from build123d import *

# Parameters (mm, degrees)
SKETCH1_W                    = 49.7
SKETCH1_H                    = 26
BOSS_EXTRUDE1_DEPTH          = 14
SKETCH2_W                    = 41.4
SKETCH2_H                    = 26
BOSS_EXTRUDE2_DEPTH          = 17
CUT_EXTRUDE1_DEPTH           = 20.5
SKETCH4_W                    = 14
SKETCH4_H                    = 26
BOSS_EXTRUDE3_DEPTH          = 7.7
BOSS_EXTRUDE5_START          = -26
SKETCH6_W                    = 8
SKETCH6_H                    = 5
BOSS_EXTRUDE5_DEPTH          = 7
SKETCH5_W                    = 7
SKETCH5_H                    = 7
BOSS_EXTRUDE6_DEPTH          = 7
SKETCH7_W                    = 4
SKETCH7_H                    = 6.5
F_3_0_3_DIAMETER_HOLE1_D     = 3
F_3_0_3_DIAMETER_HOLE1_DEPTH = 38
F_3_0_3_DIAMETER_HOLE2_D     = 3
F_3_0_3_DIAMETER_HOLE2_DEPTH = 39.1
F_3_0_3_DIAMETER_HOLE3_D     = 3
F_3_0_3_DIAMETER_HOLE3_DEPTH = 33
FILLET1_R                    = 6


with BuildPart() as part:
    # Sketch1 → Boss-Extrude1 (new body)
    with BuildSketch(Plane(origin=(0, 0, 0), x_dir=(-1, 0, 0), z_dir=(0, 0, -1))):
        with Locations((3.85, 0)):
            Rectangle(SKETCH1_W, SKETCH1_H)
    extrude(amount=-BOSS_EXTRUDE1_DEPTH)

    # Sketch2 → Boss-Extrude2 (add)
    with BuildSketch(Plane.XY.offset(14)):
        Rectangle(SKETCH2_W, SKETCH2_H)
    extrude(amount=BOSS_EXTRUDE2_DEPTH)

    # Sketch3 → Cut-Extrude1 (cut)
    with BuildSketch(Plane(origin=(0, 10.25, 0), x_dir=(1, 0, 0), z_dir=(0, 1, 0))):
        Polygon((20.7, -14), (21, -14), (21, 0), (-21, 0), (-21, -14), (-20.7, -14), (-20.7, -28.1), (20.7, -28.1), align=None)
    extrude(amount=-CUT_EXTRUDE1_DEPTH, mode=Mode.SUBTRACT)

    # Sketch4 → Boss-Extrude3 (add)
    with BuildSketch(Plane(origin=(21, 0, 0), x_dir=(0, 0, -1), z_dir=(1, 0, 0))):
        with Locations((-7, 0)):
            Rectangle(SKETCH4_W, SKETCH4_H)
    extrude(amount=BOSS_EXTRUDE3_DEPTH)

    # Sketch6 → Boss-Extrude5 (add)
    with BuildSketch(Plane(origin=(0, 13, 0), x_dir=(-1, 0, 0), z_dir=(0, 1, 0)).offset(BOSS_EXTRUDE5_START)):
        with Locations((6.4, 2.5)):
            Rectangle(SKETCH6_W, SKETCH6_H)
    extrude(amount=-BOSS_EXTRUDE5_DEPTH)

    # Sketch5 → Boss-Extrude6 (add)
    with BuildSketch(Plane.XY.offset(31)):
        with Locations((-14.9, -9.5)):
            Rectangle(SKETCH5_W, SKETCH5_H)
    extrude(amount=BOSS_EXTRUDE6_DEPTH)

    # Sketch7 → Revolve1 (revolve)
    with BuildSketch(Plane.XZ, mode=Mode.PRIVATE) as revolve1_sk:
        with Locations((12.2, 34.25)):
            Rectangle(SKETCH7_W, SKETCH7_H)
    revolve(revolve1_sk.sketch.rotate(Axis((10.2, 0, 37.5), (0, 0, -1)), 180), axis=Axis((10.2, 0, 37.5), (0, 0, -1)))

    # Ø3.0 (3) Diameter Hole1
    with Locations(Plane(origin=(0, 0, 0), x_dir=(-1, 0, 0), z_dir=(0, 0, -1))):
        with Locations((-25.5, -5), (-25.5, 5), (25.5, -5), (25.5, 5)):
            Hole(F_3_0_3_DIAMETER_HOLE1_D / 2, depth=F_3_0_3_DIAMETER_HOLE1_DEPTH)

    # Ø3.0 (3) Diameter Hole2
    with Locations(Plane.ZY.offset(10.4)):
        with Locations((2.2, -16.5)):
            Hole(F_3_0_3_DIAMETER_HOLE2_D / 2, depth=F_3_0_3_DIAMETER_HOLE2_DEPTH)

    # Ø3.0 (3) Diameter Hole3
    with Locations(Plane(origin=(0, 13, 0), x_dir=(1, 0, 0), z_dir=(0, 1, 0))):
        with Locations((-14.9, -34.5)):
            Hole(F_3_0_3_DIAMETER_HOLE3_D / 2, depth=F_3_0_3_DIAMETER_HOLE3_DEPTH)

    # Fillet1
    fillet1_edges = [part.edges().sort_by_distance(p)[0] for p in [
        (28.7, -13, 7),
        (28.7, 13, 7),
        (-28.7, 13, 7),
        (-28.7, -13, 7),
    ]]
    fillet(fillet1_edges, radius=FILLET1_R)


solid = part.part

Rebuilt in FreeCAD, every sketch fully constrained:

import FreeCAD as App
import Part
import Sketcher

V = App.Vector


def edges_at(feature, points):
    """Names of the edges that pass closest to the given points."""
    edges = feature.Shape.Edges
    near = lambda p: min(range(len(edges)), key=lambda i: edges[i].distToShape(Part.Vertex(*p))[0])
    return sorted({f"Edge{near(p) + 1}" for p in points})

doc = App.newDocument("Part")
body = doc.addObject("PartDesign::Body", "Body")

# Sketch on XY plane
sketch1 = body.newObject("Sketcher::SketchObject", "Sketch")
sketch1.AttachmentSupport = (doc.getObject("XY_Plane"), [""])
sketch1.MapMode = "FlatFace"
sketch1.addGeometry([
    Part.LineSegment(V(21, 13, 0), V(21, -13, 0)),
    Part.LineSegment(V(21, -13, 0), V(-28.7, -13, 0)),
    Part.LineSegment(V(-28.7, -13, 0), V(-28.7, 13, 0)),
    Part.LineSegment(V(-28.7, 13, 0), V(21, 13, 0)),
], False)
sketch1.addConstraint([
    Sketcher.Constraint("Coincident", 0, 2, 1, 1),
    Sketcher.Constraint("Coincident", 1, 2, 2, 1),
    Sketcher.Constraint("Coincident", 2, 2, 3, 1),
    Sketcher.Constraint("Coincident", 3, 2, 0, 1),
    Sketcher.Constraint("Vertical", 0),
    Sketcher.Constraint("Horizontal", 1),
    Sketcher.Constraint("Vertical", 2),
    Sketcher.Constraint("Horizontal", 3),
    Sketcher.Constraint("DistanceY", 0, 2, 0, 1, 26.0),
    Sketcher.Constraint("DistanceX", 1, 2, 1, 1, 49.7),
    Sketcher.Constraint("DistanceX", -1, 1, 0, 2, 21.0),
    Sketcher.Constraint("DistanceY", 0, 2, -1, 1, 13.0),
])
pad1 = body.newObject("PartDesign::Pad", "Pad")
pad1.Profile = sketch1
pad1.Length = 14

# Sketch on XY plane
sketch2 = body.newObject("Sketcher::SketchObject", "Sketch001")
sketch2.AttachmentSupport = (doc.getObject("XY_Plane"), [""])
sketch2.MapMode = "FlatFace"
sketch2.AttachmentOffset = App.Placement(V(0, 0, 14), App.Rotation())
sketch2.addGeometry([
    Part.LineSegment(V(-20.7, 13, 0), V(-20.7, -13, 0)),
    Part.LineSegment(V(-20.7, -13, 0), V(20.7, -13, 0)),
    Part.LineSegment(V(20.7, -13, 0), V(20.7, 13, 0)),
    Part.LineSegment(V(20.7, 13, 0), V(-20.7, 13, 0)),
], False)
sketch2.addConstraint([
    Sketcher.Constraint("Coincident", 0, 2, 1, 1),
    Sketcher.Constraint("Coincident", 1, 2, 2, 1),
    Sketcher.Constraint("Coincident", 2, 2, 3, 1),
    Sketcher.Constraint("Coincident", 3, 2, 0, 1),
    Sketcher.Constraint("Vertical", 0),
    Sketcher.Constraint("Horizontal", 1),
    Sketcher.Constraint("Vertical", 2),
    Sketcher.Constraint("Horizontal", 3),
    Sketcher.Constraint("Symmetric", 0, 2, 2, 2, -1, 1),
    Sketcher.Constraint("DistanceY", 0, 2, 0, 1, 26.0),
    Sketcher.Constraint("DistanceX", 1, 1, 1, 2, 41.4),
])
pad2 = body.newObject("PartDesign::Pad", "Pad001")
pad2.Profile = sketch2
pad2.Length = 17

# Sketch on XZ plane
sketch3 = body.newObject("Sketcher::SketchObject", "Sketch002")
sketch3.AttachmentSupport = (doc.getObject("XZ_Plane"), [""])
sketch3.MapMode = "FlatFace"
sketch3.AttachmentOffset = App.Placement(V(0, 0, -10.25), App.Rotation())
sketch3.addGeometry([
    Part.LineSegment(V(20.7, 14, 0), V(21, 14, 0)),  # 0
    Part.LineSegment(V(21, 14, 0), V(21, 0, 0)),  # 1
    Part.LineSegment(V(21, 0, 0), V(-21, 0, 0)),  # 2
    Part.LineSegment(V(-21, 0, 0), V(-21, 14, 0)),  # 3
    Part.LineSegment(V(-21, 14, 0), V(-20.7, 14, 0)),  # 4
    Part.LineSegment(V(-20.7, 14, 0), V(-20.7, 28.1, 0)),  # 5
    Part.LineSegment(V(-20.7, 28.1, 0), V(20.7, 28.1, 0)),  # 6
    Part.LineSegment(V(20.7, 28.1, 0), V(20.7, 14, 0)),  # 7
], False)
sketch3.addConstraint([
    Sketcher.Constraint("Coincident", 0, 2, 1, 1),
    Sketcher.Constraint("Coincident", 1, 2, 2, 1),
    Sketcher.Constraint("Coincident", 2, 2, 3, 1),
    Sketcher.Constraint("Coincident", 3, 2, 4, 1),
    Sketcher.Constraint("Coincident", 4, 2, 5, 1),
    Sketcher.Constraint("Coincident", 5, 2, 6, 1),
    Sketcher.Constraint("Coincident", 6, 2, 7, 1),
    Sketcher.Constraint("Coincident", 7, 2, 0, 1),
    Sketcher.Constraint("Horizontal", 0),
    Sketcher.Constraint("Vertical", 1),
    Sketcher.Constraint("Horizontal", 2),
    Sketcher.Constraint("Vertical", 3),
    Sketcher.Constraint("Horizontal", 4),
    Sketcher.Constraint("Vertical", 5),
    Sketcher.Constraint("Horizontal", 6),
    Sketcher.Constraint("Vertical", 7),
    Sketcher.Constraint("Symmetric", 1, 2, 2, 2, -1, 1),
    Sketcher.Constraint("Symmetric", 4, 2, 7, 2, -2),
    Sketcher.Constraint("DistanceX", 2, 2, 2, 1, 42.0),
    Sketcher.Constraint("DistanceY", 1, 2, 1, 1, 14.0),
    Sketcher.Constraint("DistanceX", 0, 1, 0, 2, 0.3),
    Sketcher.Constraint("DistanceY", 5, 1, 5, 2, 14.1),
])
pocket1 = body.newObject("PartDesign::Pocket", "Pocket")
pocket1.Profile = sketch3
pocket1.Length = 20.5
pocket1.Reversed = True

# Sketch on YZ plane
sketch4 = body.newObject("Sketcher::SketchObject", "Sketch003")
sketch4.AttachmentSupport = (doc.getObject("YZ_Plane"), [""])
sketch4.MapMode = "FlatFace"
sketch4.AttachmentOffset = App.Placement(V(0, 0, 21), App.Rotation())
sketch4.addGeometry([
    Part.LineSegment(V(13, 14, 0), V(-13, 14, 0)),
    Part.LineSegment(V(-13, 14, 0), V(-13, 0, 0)),
    Part.LineSegment(V(-13, 0, 0), V(13, 0, 0)),
    Part.LineSegment(V(13, 0, 0), V(13, 14, 0)),
], False)
sketch4.addConstraint([
    Sketcher.Constraint("Coincident", 0, 2, 1, 1),
    Sketcher.Constraint("Coincident", 1, 2, 2, 1),
    Sketcher.Constraint("Coincident", 2, 2, 3, 1),
    Sketcher.Constraint("Coincident", 3, 2, 0, 1),
    Sketcher.Constraint("Horizontal", 0),
    Sketcher.Constraint("Vertical", 1),
    Sketcher.Constraint("Horizontal", 2),
    Sketcher.Constraint("Vertical", 3),
    Sketcher.Constraint("Symmetric", 1, 2, 2, 2, -1, 1),
    Sketcher.Constraint("DistanceX", 0, 2, 0, 1, 26.0),
    Sketcher.Constraint("DistanceY", 1, 2, 1, 1, 14.0),
])
pad3 = body.newObject("PartDesign::Pad", "Pad002")
pad3.Profile = sketch4
pad3.Length = 7.7

# Sketch on XZ plane
sketch5 = body.newObject("Sketcher::SketchObject", "Sketch004")
sketch5.AttachmentSupport = (doc.getObject("XZ_Plane"), [""])
sketch5.MapMode = "FlatFace"
sketch5.AttachmentOffset = App.Placement(V(0, 0, 13), App.Rotation())
sketch5.addGeometry([
    Part.LineSegment(V(-2.4, 5, 0), V(-2.4, 0, 0)),
    Part.LineSegment(V(-2.4, 0, 0), V(-10.4, 0, 0)),
    Part.LineSegment(V(-10.4, 0, 0), V(-10.4, 5, 0)),
    Part.LineSegment(V(-10.4, 5, 0), V(-2.4, 5, 0)),
], False)
sketch5.addConstraint([
    Sketcher.Constraint("Coincident", 0, 2, 1, 1),
    Sketcher.Constraint("Coincident", 1, 2, 2, 1),
    Sketcher.Constraint("Coincident", 2, 2, 3, 1),
    Sketcher.Constraint("Coincident", 3, 2, 0, 1),
    Sketcher.Constraint("Vertical", 0),
    Sketcher.Constraint("Horizontal", 1),
    Sketcher.Constraint("Vertical", 2),
    Sketcher.Constraint("Horizontal", 3),
    Sketcher.Constraint("PointOnObject", 0, 2, -1),
    Sketcher.Constraint("DistanceX", 1, 2, 1, 1, 8.0),
    Sketcher.Constraint("DistanceY", 0, 2, 0, 1, 5.0),
    Sketcher.Constraint("DistanceX", 0, 2, -1, 1, 2.4),
])
pad4 = body.newObject("PartDesign::Pad", "Pad003")
pad4.Profile = sketch5
pad4.Length = 7

# Sketch on XY plane
sketch6 = body.newObject("Sketcher::SketchObject", "Sketch005")
sketch6.AttachmentSupport = (doc.getObject("XY_Plane"), [""])
sketch6.MapMode = "FlatFace"
sketch6.AttachmentOffset = App.Placement(V(0, 0, 31), App.Rotation())
sketch6.addGeometry([
    Part.LineSegment(V(-18.4, -6, 0), V(-18.4, -13, 0)),
    Part.LineSegment(V(-18.4, -13, 0), V(-11.4, -13, 0)),
    Part.LineSegment(V(-11.4, -13, 0), V(-11.4, -6, 0)),
    Part.LineSegment(V(-11.4, -6, 0), V(-18.4, -6, 0)),
], False)
sketch6.addConstraint([
    Sketcher.Constraint("Coincident", 0, 2, 1, 1),
    Sketcher.Constraint("Coincident", 1, 2, 2, 1),
    Sketcher.Constraint("Coincident", 2, 2, 3, 1),
    Sketcher.Constraint("Coincident", 3, 2, 0, 1),
    Sketcher.Constraint("Vertical", 0),
    Sketcher.Constraint("Horizontal", 1),
    Sketcher.Constraint("Vertical", 2),
    Sketcher.Constraint("Horizontal", 3),
    Sketcher.Constraint("Equal", 3, 0),
    Sketcher.Constraint("DistanceX", 1, 1, 1, 2, 7.0),
    Sketcher.Constraint("DistanceY", 0, 2, -1, 1, 13.0),
    Sketcher.Constraint("DistanceX", 0, 2, -1, 1, 18.4),
])
pad5 = body.newObject("PartDesign::Pad", "Pad004")
pad5.Profile = sketch6
pad5.Length = 7

# Sketch on XZ plane
sketch7 = body.newObject("Sketcher::SketchObject", "Sketch006")
sketch7.AttachmentSupport = (doc.getObject("XZ_Plane"), [""])
sketch7.MapMode = "FlatFace"
sketch7.addGeometry([
    Part.LineSegment(V(10.2, 37.5, 0), V(10.2, 31, 0)),
    Part.LineSegment(V(10.2, 31, 0), V(14.2, 31, 0)),
    Part.LineSegment(V(14.2, 31, 0), V(14.2, 37.5, 0)),
    Part.LineSegment(V(14.2, 37.5, 0), V(10.2, 37.5, 0)),
], False)
sketch7.addGeometry(Part.LineSegment(V(10.2, 37.5, 0), V(10.2, 31, 0)), True)  # axis
sketch7.addConstraint([
    Sketcher.Constraint("Coincident", 0, 2, 1, 1),
    Sketcher.Constraint("Coincident", 1, 2, 2, 1),
    Sketcher.Constraint("Coincident", 2, 2, 3, 1),
    Sketcher.Constraint("Coincident", 3, 2, 0, 1),
    Sketcher.Constraint("Vertical", 0),
    Sketcher.Constraint("Horizontal", 1),
    Sketcher.Constraint("Vertical", 2),
    Sketcher.Constraint("Horizontal", 3),
    Sketcher.Constraint("Vertical", 4),
    Sketcher.Constraint("Coincident", 4, 1, 3, 2),
    Sketcher.Constraint("Horizontal", 1, 2, 4, 2),
    Sketcher.Constraint("DistanceX", 1, 1, 1, 2, 4.0),
    Sketcher.Constraint("DistanceY", 0, 2, 0, 1, 6.5),
    Sketcher.Constraint("DistanceY", -1, 1, 0, 2, 31.0),
    Sketcher.Constraint("DistanceX", -1, 1, 0, 2, 10.2),
])
revolution = body.newObject("PartDesign::Revolution", "Revolution")
revolution.Profile = sketch7
revolution.ReferenceAxis = (sketch7, ["Axis0"])
revolution.Angle = 360

# Sketch on XY plane
sketch8 = body.newObject("Sketcher::SketchObject", "Sketch007")
sketch8.AttachmentSupport = (doc.getObject("XY_Plane"), [""])
sketch8.MapMode = "FlatFace"
sketch8.addGeometry([
    Part.Circle(V(25.5, -5, 0), V(0, 0, 1), 1.5),
    Part.Circle(V(25.5, 5, 0), V(0, 0, 1), 1.5),
    Part.Circle(V(-25.5, -5, 0), V(0, 0, 1), 1.5),
    Part.Circle(V(-25.5, 5, 0), V(0, 0, 1), 1.5),
], False)
sketch8.addConstraint([
    Sketcher.Constraint("Equal", 0, 1),
    Sketcher.Constraint("Equal", 1, 2),
    Sketcher.Constraint("Equal", 2, 3),
    Sketcher.Constraint("Symmetric", 1, 3, 2, 3, -1, 1),
    Sketcher.Constraint("Symmetric", 0, 3, 3, 3, -1, 1),
    Sketcher.Constraint("Symmetric", 0, 3, 2, 3, -2),
    Sketcher.Constraint("Diameter", 0, 3.0),
    Sketcher.Constraint("DistanceY", 0, 3, -1, 1, 5.0),
    Sketcher.Constraint("DistanceX", 2, 3, 0, 3, 51.0),
])
doc.recompute()
hole = body.newObject("PartDesign::Hole", "Hole")
hole.Profile = sketch8
hole.ThreadType = "None"
hole.Diameter = 3
hole.DepthType = "Dimension"
hole.Depth = 38
hole.DrillPoint = "Flat"
hole.Reversed = True

# Sketch on YZ plane
sketch9 = body.newObject("Sketcher::SketchObject", "Sketch008")
sketch9.AttachmentSupport = (doc.getObject("YZ_Plane"), [""])
sketch9.MapMode = "FlatFace"
sketch9.AttachmentOffset = App.Placement(V(0, 0, -10.4), App.Rotation())
sketch9.addGeometry(Part.Circle(V(-16.5, 2.2, 0), V(0, 0, 1), 1.5), False)
sketch9.addConstraint([
    Sketcher.Constraint("Diameter", 0, 3.0),
    Sketcher.Constraint("DistanceX", 0, 3, -1, 1, 16.5),
    Sketcher.Constraint("DistanceY", -1, 1, 0, 3, 2.2),
])
doc.recompute()
hole2 = body.newObject("PartDesign::Hole", "Hole001")
hole2.Profile = sketch9
hole2.ThreadType = "None"
hole2.Diameter = 3
hole2.DepthType = "Dimension"
hole2.Depth = 39.1
hole2.DrillPoint = "Flat"
hole2.Reversed = True

# Sketch on XZ plane
sketch10 = body.newObject("Sketcher::SketchObject", "Sketch009")
sketch10.AttachmentSupport = (doc.getObject("XZ_Plane"), [""])
sketch10.MapMode = "FlatFace"
sketch10.AttachmentOffset = App.Placement(V(0, 0, -13), App.Rotation())
sketch10.addGeometry(Part.Circle(V(-14.9, 34.5, 0), V(0, 0, 1), 1.5), False)
sketch10.addConstraint([
    Sketcher.Constraint("Diameter", 0, 3.0),
    Sketcher.Constraint("DistanceX", 0, 3, -1, 1, 14.9),
    Sketcher.Constraint("DistanceY", -1, 1, 0, 3, 34.5),
])
doc.recompute()
hole3 = body.newObject("PartDesign::Hole", "Hole002")
hole3.Profile = sketch10
hole3.ThreadType = "None"
hole3.Diameter = 3
hole3.DepthType = "Dimension"
hole3.Depth = 33
hole3.DrillPoint = "Flat"
hole3.Reversed = True
doc.recompute()

fillet = body.newObject("PartDesign::Fillet", "Fillet")
fillet.Base = (hole3, edges_at(hole3, [
    (28.7, -13, 7),
    (28.7, 13, 7),
    (-28.7, 13, 7),
    (-28.7, -13, 7),
]))
fillet.Radius = 6

doc.recompute()
